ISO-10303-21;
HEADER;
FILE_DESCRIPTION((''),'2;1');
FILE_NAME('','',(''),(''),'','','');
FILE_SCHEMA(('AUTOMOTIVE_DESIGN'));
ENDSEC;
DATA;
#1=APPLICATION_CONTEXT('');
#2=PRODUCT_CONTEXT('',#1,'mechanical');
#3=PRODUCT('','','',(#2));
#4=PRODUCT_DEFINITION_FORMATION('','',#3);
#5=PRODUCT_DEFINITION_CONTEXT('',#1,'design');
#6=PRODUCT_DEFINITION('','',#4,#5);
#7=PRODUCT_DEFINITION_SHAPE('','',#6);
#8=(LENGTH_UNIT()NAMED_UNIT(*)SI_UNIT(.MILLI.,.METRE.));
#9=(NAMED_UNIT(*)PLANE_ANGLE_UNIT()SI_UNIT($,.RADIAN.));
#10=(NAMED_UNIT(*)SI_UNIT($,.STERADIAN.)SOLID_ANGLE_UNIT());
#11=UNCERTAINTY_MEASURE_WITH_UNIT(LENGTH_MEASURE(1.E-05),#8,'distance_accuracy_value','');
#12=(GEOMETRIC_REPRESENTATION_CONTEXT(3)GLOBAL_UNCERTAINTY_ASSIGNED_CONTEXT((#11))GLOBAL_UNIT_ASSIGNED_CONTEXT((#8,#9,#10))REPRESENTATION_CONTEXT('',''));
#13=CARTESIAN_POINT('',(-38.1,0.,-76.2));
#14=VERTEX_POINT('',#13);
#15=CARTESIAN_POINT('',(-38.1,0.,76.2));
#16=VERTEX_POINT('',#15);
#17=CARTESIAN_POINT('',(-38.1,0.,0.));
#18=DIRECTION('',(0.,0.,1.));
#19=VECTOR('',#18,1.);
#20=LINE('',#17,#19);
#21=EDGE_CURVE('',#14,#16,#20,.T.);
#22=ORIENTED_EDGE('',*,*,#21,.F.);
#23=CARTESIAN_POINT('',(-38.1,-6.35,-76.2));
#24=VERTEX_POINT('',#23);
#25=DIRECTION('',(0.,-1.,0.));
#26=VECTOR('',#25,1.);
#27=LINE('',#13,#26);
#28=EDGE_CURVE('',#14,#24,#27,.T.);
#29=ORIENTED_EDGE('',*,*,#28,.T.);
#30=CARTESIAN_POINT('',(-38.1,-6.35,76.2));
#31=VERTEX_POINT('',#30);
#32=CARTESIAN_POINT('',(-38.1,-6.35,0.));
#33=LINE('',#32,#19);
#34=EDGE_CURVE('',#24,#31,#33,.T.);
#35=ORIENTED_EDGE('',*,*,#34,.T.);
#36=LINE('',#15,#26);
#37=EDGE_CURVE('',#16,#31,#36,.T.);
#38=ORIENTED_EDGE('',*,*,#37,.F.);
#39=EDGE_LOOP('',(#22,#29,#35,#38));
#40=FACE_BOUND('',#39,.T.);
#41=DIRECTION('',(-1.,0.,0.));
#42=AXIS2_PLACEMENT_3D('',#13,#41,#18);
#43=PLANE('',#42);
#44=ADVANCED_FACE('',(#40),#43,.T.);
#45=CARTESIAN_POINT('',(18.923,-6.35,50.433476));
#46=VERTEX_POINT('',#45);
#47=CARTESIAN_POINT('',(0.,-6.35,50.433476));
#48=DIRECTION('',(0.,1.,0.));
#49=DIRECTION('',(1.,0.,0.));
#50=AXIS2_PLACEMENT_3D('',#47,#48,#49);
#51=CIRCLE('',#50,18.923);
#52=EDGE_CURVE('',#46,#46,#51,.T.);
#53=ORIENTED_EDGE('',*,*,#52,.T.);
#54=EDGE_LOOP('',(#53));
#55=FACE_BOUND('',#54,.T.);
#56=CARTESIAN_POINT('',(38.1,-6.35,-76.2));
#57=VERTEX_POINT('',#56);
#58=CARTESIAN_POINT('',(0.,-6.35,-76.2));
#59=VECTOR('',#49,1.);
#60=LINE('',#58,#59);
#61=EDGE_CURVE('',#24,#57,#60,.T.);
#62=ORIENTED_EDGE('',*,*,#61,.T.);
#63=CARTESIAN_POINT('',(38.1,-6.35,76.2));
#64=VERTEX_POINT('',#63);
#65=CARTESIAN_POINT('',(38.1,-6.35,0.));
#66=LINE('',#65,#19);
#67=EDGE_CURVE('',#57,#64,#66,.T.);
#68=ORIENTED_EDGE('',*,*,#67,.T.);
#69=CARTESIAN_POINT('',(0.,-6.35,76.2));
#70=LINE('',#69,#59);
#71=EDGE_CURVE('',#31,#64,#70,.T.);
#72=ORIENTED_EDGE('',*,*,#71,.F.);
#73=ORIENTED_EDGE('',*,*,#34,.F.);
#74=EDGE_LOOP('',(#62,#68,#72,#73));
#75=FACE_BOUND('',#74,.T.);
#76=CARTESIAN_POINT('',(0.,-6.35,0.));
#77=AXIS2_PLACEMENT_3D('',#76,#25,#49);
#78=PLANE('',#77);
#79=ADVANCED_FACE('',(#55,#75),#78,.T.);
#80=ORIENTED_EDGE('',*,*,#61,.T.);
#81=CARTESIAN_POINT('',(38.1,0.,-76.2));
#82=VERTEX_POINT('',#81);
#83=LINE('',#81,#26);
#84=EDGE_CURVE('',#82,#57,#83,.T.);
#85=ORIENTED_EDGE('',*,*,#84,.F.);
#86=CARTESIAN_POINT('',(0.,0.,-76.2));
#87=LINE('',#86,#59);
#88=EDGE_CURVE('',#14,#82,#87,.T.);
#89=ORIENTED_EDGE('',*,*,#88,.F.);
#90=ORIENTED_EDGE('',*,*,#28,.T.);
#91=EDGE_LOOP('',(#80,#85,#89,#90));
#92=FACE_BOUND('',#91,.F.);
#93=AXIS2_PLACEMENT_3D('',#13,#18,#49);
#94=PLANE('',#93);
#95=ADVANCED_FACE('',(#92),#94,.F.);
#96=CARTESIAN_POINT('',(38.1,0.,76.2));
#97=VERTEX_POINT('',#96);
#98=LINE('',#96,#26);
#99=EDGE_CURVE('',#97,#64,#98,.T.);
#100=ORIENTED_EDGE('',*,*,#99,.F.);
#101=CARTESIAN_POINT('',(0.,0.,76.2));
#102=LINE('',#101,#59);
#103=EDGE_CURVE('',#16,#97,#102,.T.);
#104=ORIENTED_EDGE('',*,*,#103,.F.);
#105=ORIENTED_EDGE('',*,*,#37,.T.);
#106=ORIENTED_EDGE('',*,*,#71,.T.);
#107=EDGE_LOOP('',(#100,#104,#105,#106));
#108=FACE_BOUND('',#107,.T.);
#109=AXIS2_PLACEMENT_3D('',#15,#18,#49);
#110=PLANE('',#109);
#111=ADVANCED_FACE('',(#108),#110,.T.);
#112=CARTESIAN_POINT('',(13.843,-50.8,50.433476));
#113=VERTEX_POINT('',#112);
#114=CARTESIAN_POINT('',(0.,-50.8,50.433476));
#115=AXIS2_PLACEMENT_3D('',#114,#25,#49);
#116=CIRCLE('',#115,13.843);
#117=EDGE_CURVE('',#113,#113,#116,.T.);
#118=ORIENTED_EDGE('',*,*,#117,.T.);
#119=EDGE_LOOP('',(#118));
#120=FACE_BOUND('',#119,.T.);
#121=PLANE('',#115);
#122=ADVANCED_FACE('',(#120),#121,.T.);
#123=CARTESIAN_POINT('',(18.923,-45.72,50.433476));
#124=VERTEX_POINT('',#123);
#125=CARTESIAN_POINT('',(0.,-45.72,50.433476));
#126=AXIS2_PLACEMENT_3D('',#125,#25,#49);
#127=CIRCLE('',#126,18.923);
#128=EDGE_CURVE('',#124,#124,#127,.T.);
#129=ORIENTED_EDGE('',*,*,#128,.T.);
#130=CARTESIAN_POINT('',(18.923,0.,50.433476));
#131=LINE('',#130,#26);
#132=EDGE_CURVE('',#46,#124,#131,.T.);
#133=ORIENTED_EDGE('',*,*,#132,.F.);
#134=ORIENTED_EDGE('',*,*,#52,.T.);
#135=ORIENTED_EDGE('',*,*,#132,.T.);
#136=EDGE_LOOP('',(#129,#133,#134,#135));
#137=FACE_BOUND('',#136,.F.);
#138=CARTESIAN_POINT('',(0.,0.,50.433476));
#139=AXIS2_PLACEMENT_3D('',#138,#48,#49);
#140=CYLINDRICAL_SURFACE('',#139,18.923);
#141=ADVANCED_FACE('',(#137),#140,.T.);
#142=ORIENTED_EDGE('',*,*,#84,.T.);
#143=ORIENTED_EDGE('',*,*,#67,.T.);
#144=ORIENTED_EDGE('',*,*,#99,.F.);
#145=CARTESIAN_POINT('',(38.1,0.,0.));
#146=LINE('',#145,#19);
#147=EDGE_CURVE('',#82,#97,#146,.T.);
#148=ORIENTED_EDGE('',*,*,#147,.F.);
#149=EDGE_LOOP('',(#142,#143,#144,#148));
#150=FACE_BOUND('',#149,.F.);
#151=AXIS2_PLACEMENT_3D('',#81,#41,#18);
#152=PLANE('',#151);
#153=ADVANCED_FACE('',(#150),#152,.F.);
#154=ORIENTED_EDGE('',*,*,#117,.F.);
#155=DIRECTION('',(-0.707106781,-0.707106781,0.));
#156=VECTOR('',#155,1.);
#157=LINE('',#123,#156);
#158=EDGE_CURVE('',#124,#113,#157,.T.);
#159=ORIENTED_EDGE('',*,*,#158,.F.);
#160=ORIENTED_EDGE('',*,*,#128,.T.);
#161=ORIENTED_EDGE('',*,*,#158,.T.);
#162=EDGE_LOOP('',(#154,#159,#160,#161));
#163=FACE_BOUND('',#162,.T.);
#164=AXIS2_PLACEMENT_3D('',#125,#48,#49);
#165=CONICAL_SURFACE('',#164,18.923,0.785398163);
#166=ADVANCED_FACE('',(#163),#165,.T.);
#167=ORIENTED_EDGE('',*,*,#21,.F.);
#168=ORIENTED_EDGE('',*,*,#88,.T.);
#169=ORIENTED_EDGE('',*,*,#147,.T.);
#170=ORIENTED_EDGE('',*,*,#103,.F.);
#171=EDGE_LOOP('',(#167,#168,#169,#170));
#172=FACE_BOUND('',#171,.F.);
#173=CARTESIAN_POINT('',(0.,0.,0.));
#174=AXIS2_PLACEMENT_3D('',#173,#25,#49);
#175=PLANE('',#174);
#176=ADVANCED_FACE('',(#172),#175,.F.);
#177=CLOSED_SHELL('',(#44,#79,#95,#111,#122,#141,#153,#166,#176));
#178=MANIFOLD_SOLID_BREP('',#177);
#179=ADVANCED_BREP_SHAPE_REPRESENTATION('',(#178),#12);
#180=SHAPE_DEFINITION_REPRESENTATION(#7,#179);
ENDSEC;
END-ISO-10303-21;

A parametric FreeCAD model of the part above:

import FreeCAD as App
import Part
import Sketcher

V = App.Vector
Q = App.Units.Quantity


def edges_at(feature, points):
    """Names of the edges that pass closest to the given points."""
    edges = feature.Shape.Edges
    near = lambda p: min(range(len(edges)), key=lambda i: edges[i].distToShape(Part.Vertex(*p))[0])
    return sorted({f"Edge{near(p) + 1}" for p in points})


def add_polygon(sketch, points):
    """Adds a closed chain of lines whose ends are joined by coincident constraints."""
    first, n = sketch.GeometryCount, len(points)
    for a, b in zip(points, points[1:] + points[:1]):
        sketch.addGeometry(Part.LineSegment(App.Vector(*a, 0), App.Vector(*b, 0)), False)
    for i in range(n):
        sketch.addConstraint(Sketcher.Constraint("Coincident", first + i, 2, first + (i + 1) % n, 1))

doc = App.newDocument("Part")
body = doc.addObject("PartDesign::Body", "Body")

# Sketch on XZ plane
sketch1 = doc.addObject("Sketcher::SketchObject", "Sketch")
body.addObject(sketch1)
sketch1.AttachmentSupport = (doc.XZ_Plane, [""])
sketch1.MapMode = "FlatFace"
sketch1.addGeometry(Part.Circle(V(0, 50, 0), V(0, 0, 1), 19), False)
sketch1.addConstraint(Sketcher.Constraint("PointOnObject", 0, 3, -2))
sketch1.addConstraint(Sketcher.Constraint("Diameter", 0, Q("1.49 in")))
sketch1.addConstraint(Sketcher.Constraint("DistanceY", -1, 1, 0, 3, 50.433476))
pad1 = doc.addObject("PartDesign::Pad", "Pad")
body.addObject(pad1)
pad1.Profile = sketch1
pad1.Length = Q("2 in")

# Sketch on XZ plane
sketch2 = doc.addObject("Sketcher::SketchObject", "Sketch001")
body.addObject(sketch2)
sketch2.AttachmentSupport = (doc.XZ_Plane, [""])
sketch2.MapMode = "FlatFace"
add_polygon(sketch2, [(-38, 76), (-38, -76), (38, -76), (38, 76)])  # lines 0-3
sketch2.addConstraint(Sketcher.Constraint("Vertical", 0))
sketch2.addConstraint(Sketcher.Constraint("Horizontal", 1))
sketch2.addConstraint(Sketcher.Constraint("Vertical", 2))
sketch2.addConstraint(Sketcher.Constraint("Horizontal", 3))
sketch2.addConstraint(Sketcher.Constraint("Symmetric", 0, 2, 2, 2, -1, 1))
sketch2.addConstraint(Sketcher.Constraint("DistanceX", 1, 1, 1, 2, Q("3 in")))
sketch2.addConstraint(Sketcher.Constraint("DistanceY", 0, 2, 0, 1, Q("6 in")))
pad2 = doc.addObject("PartDesign::Pad", "Pad001")
body.addObject(pad2)
pad2.Profile = sketch2
pad2.Length = Q("0.25 in")
doc.recompute()

chamfer = doc.addObject("PartDesign::Chamfer", "Chamfer")
body.addObject(chamfer)
chamfer.Base = (pad2, edges_at(pad2, [(-18.923, -50.8, 50.433)]))
chamfer.Size = Q("0.2 in")

doc.recompute()
